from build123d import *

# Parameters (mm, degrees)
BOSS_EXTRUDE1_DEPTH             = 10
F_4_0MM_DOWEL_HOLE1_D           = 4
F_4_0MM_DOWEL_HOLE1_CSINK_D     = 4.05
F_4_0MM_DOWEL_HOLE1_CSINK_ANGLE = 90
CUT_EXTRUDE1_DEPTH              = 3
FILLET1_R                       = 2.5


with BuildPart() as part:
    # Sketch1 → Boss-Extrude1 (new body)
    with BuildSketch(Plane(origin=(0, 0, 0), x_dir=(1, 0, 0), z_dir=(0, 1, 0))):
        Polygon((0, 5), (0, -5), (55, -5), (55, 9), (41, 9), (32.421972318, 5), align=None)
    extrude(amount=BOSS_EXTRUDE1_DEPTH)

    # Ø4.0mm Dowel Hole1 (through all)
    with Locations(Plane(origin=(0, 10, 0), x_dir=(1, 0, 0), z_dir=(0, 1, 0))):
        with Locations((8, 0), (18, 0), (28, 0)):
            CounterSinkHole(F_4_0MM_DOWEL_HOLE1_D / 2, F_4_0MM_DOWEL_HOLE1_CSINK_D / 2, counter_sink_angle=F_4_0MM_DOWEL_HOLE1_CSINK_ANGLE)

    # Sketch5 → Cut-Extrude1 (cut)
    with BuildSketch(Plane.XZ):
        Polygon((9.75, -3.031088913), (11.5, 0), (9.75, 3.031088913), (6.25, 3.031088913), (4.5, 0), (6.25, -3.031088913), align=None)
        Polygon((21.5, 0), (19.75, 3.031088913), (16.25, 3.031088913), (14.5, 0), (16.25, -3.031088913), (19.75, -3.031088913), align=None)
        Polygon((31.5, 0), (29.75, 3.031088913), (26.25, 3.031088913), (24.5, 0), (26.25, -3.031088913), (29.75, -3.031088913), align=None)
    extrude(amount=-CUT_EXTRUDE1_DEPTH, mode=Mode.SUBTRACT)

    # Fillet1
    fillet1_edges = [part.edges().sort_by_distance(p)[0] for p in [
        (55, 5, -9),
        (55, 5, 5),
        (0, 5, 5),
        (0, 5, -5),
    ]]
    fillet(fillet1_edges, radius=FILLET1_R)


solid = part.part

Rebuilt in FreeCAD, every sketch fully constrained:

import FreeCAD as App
import Part
import Sketcher
Q = App.Units.Quantity


def edges_at(feature, points):
    """Names of the edges that pass closest to the given points."""
    edges = feature.Shape.Edges
    near = lambda p: min(range(len(edges)), key=lambda i: edges[i].distToShape(Part.Vertex(*p))[0])
    return sorted({f"Edge{near(p) + 1}" for p in points})

doc = App.newDocument("Part")
body = doc.addObject("PartDesign::Body", "Body")

# Sketch on XZ plane
sketch1 = doc.addObject("Sketcher::SketchObject", "Sketch")
body.addObject(sketch1)
sketch1.AttachmentSupport = (doc.XZ_Plane, [""])
sketch1.MapMode = "FlatFace"
sketch1.addGeometry([
    Part.LineSegment(App.Vector(0, -5, 0), App.Vector(0, 5, 0)),  # 0
    Part.LineSegment(App.Vector(0, 5, 0), App.Vector(55, 5, 0)),  # 1
    Part.LineSegment(App.Vector(55, 5, 0), App.Vector(55, -9, 0)),  # 2
    Part.LineSegment(App.Vector(55, -9, 0), App.Vector(41, -9, 0)),  # 3
    Part.LineSegment(App.Vector(41, -9, 0), App.Vector(32.421972, -5, 0)),  # 4
    Part.LineSegment(App.Vector(32.421972, -5, 0), App.Vector(0, -5, 0)),  # 5
], False)
sketch1.addConstraint([
    Sketcher.Constraint("Coincident", 0, 2, 1, 1),
    Sketcher.Constraint("Coincident", 1, 2, 2, 1),
    Sketcher.Constraint("Coincident", 2, 2, 3, 1),
    Sketcher.Constraint("Coincident", 3, 2, 4, 1),
    Sketcher.Constraint("Coincident", 4, 2, 5, 1),
    Sketcher.Constraint("Coincident", 5, 2, 0, 1),
    Sketcher.Constraint("Vertical", 0),
    Sketcher.Constraint("Horizontal", 1),
    Sketcher.Constraint("Vertical", 2),
    Sketcher.Constraint("Horizontal", 3),
    Sketcher.Constraint("Horizontal", 5),
    Sketcher.Constraint("Symmetric", 0, 2, 5, 2, -1, 1),
    Sketcher.Constraint("Equal", 3, 2),
    Sketcher.Constraint("DistanceX", 1, 1, 1, 2, Q("55 mm")),
    Sketcher.Constraint("DistanceX", 3, 2, 3, 1, Q("14 mm")),
    Sketcher.Constraint("DistanceY", 0, 1, 0, 2, Q("10 mm")),
    Sketcher.Constraint("Angle", 4, Q("155 deg")),
])
pad1 = doc.addObject("PartDesign::Pad", "Pad")
body.addObject(pad1)
pad1.Profile = sketch1
pad1.Length = 10
pad1.Reversed = True

# Sketch on XZ plane
sketch2 = doc.addObject("Sketcher::SketchObject", "Sketch001")
body.addObject(sketch2)
sketch2.AttachmentSupport = (doc.XZ_Plane, [""])
sketch2.MapMode = "FlatFace"
sketch2.AttachmentOffset = App.Placement(App.Vector(0, 0, -10), App.Rotation())
sketch2.addGeometry([
    Part.Circle(App.Vector(8, 0, 0), App.Vector(0, 0, 1), 2),
    Part.Circle(App.Vector(18, 0, 0), App.Vector(0, 0, 1), 2),
    Part.Circle(App.Vector(28, 0, 0), App.Vector(0, 0, 1), 2),
], False)
sketch2.addConstraint([
    Sketcher.Constraint("Equal", 0, 1),
    Sketcher.Constraint("Equal", 1, 2),
    Sketcher.Constraint("PointOnObject", 0, 3, -1),
    Sketcher.Constraint("PointOnObject", 1, 3, -1),
    Sketcher.Constraint("PointOnObject", 2, 3, -1),
    Sketcher.Constraint("Diameter", 0, Q("4 mm")),
    Sketcher.Constraint("DistanceX", -1, 1, 0, 3, Q("8 mm")),
    Sketcher.Constraint("DistanceX", -1, 1, 1, 3, Q("18 mm")),
    Sketcher.Constraint("DistanceX", -1, 1, 2, 3, Q("28 mm")),
])
doc.recompute()
hole = doc.addObject("PartDesign::Hole", "Hole")
body.addObject(hole)
hole.Profile = sketch2
hole.ThreadType = "None"
hole.Diameter = 4
hole.DepthType = "ThroughAll"
hole.HoleCutType = "Countersink"
hole.HoleCutDiameter = 4.05
hole.HoleCutCountersinkAngle = 90
hole.Reversed = True

# Sketch on XZ plane
sketch3 = doc.addObject("Sketcher::SketchObject", "Sketch002")
body.addObject(sketch3)
sketch3.AttachmentSupport = (doc.XZ_Plane, [""])
sketch3.MapMode = "FlatFace"
sketch3.addGeometry([
    Part.LineSegment(App.Vector(9.75, -3.031089, 0), App.Vector(11.5, 0, 0)),  # 0
    Part.LineSegment(App.Vector(11.5, 0, 0), App.Vector(9.75, 3.031089, 0)),  # 1
    Part.LineSegment(App.Vector(9.75, 3.031089, 0), App.Vector(6.25, 3.031089, 0)),  # 2
    Part.LineSegment(App.Vector(6.25, 3.031089, 0), App.Vector(4.5, 0, 0)),  # 3
    Part.LineSegment(App.Vector(4.5, 0, 0), App.Vector(6.25, -3.031089, 0)),  # 4
    Part.LineSegment(App.Vector(6.25, -3.031089, 0), App.Vector(9.75, -3.031089, 0)),  # 5
    Part.LineSegment(App.Vector(21.5, 0, 0), App.Vector(19.75, 3.031089, 0)),  # 6
    Part.LineSegment(App.Vector(19.75, 3.031089, 0), App.Vector(16.25, 3.031089, 0)),  # 7
    Part.LineSegment(App.Vector(16.25, 3.031089, 0), App.Vector(14.5, 0, 0)),  # 8
    Part.LineSegment(App.Vector(14.5, 0, 0), App.Vector(16.25, -3.031089, 0)),  # 9
    Part.LineSegment(App.Vector(16.25, -3.031089, 0), App.Vector(19.75, -3.031089, 0)),  # 10
    Part.LineSegment(App.Vector(19.75, -3.031089, 0), App.Vector(21.5, 0, 0)),  # 11
    Part.LineSegment(App.Vector(31.5, 0, 0), App.Vector(29.75, 3.031089, 0)),  # 12
    Part.LineSegment(App.Vector(29.75, 3.031089, 0), App.Vector(26.25, 3.031089, 0)),  # 13
    Part.LineSegment(App.Vector(26.25, 3.031089, 0), App.Vector(24.5, 0, 0)),  # 14
    Part.LineSegment(App.Vector(24.5, 0, 0), App.Vector(26.25, -3.031089, 0)),  # 15
    Part.LineSegment(App.Vector(26.25, -3.031089, 0), App.Vector(29.75, -3.031089, 0)),  # 16
    Part.LineSegment(App.Vector(29.75, -3.031089, 0), App.Vector(31.5, 0, 0)),  # 17
], False)
sketch3.addConstraint([
    Sketcher.Constraint("Coincident", 0, 2, 1, 1),
    Sketcher.Constraint("Coincident", 1, 2, 2, 1),
    Sketcher.Constraint("Coincident", 2, 2, 3, 1),
    Sketcher.Constraint("Coincident", 3, 2, 4, 1),
    Sketcher.Constraint("Coincident", 4, 2, 5, 1),
    Sketcher.Constraint("Coincident", 5, 2, 0, 1),
    Sketcher.Constraint("Coincident", 6, 2, 7, 1),
    Sketcher.Constraint("Coincident", 7, 2, 8, 1),
    Sketcher.Constraint("Coincident", 8, 2, 9, 1),
    Sketcher.Constraint("Coincident", 9, 2, 10, 1),
    Sketcher.Constraint("Coincident", 10, 2, 11, 1),
    Sketcher.Constraint("Coincident", 11, 2, 6, 1),
    Sketcher.Constraint("Coincident", 12, 2, 13, 1),
    Sketcher.Constraint("Coincident", 13, 2, 14, 1),
    Sketcher.Constraint("Coincident", 14, 2, 15, 1),
    Sketcher.Constraint("Coincident", 15, 2, 16, 1),
    Sketcher.Constraint("Coincident", 16, 2, 17, 1),
    Sketcher.Constraint("Coincident", 17, 2, 12, 1),
    Sketcher.Constraint("Horizontal", 2),
    Sketcher.Constraint("Horizontal", 5),
    Sketcher.Constraint("Horizontal", 7),
    Sketcher.Constraint("Horizontal", 10),
    Sketcher.Constraint("Horizontal", 13),
    Sketcher.Constraint("Horizontal", 16),
    Sketcher.Constraint("Symmetric", 2, 2, 4, 2, -1),
    Sketcher.Constraint("Symmetric", 7, 2, 9, 2, -1),
    Sketcher.Constraint("Symmetric", 13, 2, 15, 2, -1),
    Sketcher.Constraint("PointOnObject", 0, 2, -1),
    Sketcher.Constraint("PointOnObject", 3, 2, -1),
    Sketcher.Constraint("PointOnObject", 8, 2, -1),
    Sketcher.Constraint("PointOnObject", 11, 2, -1),
    Sketcher.Constraint("PointOnObject", 14, 2, -1),
    Sketcher.Constraint("PointOnObject", 17, 2, -1),
    Sketcher.Constraint("Parallel", 0, 3),
    Sketcher.Constraint("Parallel", 1, 4),
    Sketcher.Constraint("Parallel", 4, 6),
    Sketcher.Constraint("Parallel", 3, 8),
    Sketcher.Constraint("Parallel", 8, 11),
    Sketcher.Constraint("Parallel", 9, 12),
    Sketcher.Constraint("Parallel", 11, 14),
    Sketcher.Constraint("Parallel", 14, 17),
    Sketcher.Constraint("Horizontal", 2, 2, 6, 2),
    Sketcher.Constraint("Horizontal", 7, 2, 12, 2),
    Sketcher.Constraint("Equal", 5, 7),
    Sketcher.Constraint("Equal", 10, 13),
    Sketcher.Constraint("Angle", 0, Q("60 deg")),
    Sketcher.Constraint("DistanceX", 2, 2, 2, 1, Q("3.5 mm")),
    Sketcher.Constraint("DistanceX", 3, 2, 0, 2, Q("7 mm")),
    Sketcher.Constraint("DistanceX", 1, 2, 6, 2, Q("10 mm")),
    Sketcher.Constraint("DistanceX", 6, 2, 12, 2, Q("10 mm")),
    Sketcher.Constraint("DistanceX", -1, 1, 0, 2, Q("11.5 mm")),
])
pocket1 = doc.addObject("PartDesign::Pocket", "Pocket")
body.addObject(pocket1)
pocket1.Profile = sketch3
pocket1.Length = 3
doc.recompute()

fillet = doc.addObject("PartDesign::Fillet", "Fillet")
body.addObject(fillet)
fillet.Base = (pocket1, edges_at(pocket1, [
    (55, 5, -9),
    (55, 5, 5),
    (0, 5, 5),
    (0, 5, -5),
]))
fillet.Radius = 2.5

doc.recompute()
